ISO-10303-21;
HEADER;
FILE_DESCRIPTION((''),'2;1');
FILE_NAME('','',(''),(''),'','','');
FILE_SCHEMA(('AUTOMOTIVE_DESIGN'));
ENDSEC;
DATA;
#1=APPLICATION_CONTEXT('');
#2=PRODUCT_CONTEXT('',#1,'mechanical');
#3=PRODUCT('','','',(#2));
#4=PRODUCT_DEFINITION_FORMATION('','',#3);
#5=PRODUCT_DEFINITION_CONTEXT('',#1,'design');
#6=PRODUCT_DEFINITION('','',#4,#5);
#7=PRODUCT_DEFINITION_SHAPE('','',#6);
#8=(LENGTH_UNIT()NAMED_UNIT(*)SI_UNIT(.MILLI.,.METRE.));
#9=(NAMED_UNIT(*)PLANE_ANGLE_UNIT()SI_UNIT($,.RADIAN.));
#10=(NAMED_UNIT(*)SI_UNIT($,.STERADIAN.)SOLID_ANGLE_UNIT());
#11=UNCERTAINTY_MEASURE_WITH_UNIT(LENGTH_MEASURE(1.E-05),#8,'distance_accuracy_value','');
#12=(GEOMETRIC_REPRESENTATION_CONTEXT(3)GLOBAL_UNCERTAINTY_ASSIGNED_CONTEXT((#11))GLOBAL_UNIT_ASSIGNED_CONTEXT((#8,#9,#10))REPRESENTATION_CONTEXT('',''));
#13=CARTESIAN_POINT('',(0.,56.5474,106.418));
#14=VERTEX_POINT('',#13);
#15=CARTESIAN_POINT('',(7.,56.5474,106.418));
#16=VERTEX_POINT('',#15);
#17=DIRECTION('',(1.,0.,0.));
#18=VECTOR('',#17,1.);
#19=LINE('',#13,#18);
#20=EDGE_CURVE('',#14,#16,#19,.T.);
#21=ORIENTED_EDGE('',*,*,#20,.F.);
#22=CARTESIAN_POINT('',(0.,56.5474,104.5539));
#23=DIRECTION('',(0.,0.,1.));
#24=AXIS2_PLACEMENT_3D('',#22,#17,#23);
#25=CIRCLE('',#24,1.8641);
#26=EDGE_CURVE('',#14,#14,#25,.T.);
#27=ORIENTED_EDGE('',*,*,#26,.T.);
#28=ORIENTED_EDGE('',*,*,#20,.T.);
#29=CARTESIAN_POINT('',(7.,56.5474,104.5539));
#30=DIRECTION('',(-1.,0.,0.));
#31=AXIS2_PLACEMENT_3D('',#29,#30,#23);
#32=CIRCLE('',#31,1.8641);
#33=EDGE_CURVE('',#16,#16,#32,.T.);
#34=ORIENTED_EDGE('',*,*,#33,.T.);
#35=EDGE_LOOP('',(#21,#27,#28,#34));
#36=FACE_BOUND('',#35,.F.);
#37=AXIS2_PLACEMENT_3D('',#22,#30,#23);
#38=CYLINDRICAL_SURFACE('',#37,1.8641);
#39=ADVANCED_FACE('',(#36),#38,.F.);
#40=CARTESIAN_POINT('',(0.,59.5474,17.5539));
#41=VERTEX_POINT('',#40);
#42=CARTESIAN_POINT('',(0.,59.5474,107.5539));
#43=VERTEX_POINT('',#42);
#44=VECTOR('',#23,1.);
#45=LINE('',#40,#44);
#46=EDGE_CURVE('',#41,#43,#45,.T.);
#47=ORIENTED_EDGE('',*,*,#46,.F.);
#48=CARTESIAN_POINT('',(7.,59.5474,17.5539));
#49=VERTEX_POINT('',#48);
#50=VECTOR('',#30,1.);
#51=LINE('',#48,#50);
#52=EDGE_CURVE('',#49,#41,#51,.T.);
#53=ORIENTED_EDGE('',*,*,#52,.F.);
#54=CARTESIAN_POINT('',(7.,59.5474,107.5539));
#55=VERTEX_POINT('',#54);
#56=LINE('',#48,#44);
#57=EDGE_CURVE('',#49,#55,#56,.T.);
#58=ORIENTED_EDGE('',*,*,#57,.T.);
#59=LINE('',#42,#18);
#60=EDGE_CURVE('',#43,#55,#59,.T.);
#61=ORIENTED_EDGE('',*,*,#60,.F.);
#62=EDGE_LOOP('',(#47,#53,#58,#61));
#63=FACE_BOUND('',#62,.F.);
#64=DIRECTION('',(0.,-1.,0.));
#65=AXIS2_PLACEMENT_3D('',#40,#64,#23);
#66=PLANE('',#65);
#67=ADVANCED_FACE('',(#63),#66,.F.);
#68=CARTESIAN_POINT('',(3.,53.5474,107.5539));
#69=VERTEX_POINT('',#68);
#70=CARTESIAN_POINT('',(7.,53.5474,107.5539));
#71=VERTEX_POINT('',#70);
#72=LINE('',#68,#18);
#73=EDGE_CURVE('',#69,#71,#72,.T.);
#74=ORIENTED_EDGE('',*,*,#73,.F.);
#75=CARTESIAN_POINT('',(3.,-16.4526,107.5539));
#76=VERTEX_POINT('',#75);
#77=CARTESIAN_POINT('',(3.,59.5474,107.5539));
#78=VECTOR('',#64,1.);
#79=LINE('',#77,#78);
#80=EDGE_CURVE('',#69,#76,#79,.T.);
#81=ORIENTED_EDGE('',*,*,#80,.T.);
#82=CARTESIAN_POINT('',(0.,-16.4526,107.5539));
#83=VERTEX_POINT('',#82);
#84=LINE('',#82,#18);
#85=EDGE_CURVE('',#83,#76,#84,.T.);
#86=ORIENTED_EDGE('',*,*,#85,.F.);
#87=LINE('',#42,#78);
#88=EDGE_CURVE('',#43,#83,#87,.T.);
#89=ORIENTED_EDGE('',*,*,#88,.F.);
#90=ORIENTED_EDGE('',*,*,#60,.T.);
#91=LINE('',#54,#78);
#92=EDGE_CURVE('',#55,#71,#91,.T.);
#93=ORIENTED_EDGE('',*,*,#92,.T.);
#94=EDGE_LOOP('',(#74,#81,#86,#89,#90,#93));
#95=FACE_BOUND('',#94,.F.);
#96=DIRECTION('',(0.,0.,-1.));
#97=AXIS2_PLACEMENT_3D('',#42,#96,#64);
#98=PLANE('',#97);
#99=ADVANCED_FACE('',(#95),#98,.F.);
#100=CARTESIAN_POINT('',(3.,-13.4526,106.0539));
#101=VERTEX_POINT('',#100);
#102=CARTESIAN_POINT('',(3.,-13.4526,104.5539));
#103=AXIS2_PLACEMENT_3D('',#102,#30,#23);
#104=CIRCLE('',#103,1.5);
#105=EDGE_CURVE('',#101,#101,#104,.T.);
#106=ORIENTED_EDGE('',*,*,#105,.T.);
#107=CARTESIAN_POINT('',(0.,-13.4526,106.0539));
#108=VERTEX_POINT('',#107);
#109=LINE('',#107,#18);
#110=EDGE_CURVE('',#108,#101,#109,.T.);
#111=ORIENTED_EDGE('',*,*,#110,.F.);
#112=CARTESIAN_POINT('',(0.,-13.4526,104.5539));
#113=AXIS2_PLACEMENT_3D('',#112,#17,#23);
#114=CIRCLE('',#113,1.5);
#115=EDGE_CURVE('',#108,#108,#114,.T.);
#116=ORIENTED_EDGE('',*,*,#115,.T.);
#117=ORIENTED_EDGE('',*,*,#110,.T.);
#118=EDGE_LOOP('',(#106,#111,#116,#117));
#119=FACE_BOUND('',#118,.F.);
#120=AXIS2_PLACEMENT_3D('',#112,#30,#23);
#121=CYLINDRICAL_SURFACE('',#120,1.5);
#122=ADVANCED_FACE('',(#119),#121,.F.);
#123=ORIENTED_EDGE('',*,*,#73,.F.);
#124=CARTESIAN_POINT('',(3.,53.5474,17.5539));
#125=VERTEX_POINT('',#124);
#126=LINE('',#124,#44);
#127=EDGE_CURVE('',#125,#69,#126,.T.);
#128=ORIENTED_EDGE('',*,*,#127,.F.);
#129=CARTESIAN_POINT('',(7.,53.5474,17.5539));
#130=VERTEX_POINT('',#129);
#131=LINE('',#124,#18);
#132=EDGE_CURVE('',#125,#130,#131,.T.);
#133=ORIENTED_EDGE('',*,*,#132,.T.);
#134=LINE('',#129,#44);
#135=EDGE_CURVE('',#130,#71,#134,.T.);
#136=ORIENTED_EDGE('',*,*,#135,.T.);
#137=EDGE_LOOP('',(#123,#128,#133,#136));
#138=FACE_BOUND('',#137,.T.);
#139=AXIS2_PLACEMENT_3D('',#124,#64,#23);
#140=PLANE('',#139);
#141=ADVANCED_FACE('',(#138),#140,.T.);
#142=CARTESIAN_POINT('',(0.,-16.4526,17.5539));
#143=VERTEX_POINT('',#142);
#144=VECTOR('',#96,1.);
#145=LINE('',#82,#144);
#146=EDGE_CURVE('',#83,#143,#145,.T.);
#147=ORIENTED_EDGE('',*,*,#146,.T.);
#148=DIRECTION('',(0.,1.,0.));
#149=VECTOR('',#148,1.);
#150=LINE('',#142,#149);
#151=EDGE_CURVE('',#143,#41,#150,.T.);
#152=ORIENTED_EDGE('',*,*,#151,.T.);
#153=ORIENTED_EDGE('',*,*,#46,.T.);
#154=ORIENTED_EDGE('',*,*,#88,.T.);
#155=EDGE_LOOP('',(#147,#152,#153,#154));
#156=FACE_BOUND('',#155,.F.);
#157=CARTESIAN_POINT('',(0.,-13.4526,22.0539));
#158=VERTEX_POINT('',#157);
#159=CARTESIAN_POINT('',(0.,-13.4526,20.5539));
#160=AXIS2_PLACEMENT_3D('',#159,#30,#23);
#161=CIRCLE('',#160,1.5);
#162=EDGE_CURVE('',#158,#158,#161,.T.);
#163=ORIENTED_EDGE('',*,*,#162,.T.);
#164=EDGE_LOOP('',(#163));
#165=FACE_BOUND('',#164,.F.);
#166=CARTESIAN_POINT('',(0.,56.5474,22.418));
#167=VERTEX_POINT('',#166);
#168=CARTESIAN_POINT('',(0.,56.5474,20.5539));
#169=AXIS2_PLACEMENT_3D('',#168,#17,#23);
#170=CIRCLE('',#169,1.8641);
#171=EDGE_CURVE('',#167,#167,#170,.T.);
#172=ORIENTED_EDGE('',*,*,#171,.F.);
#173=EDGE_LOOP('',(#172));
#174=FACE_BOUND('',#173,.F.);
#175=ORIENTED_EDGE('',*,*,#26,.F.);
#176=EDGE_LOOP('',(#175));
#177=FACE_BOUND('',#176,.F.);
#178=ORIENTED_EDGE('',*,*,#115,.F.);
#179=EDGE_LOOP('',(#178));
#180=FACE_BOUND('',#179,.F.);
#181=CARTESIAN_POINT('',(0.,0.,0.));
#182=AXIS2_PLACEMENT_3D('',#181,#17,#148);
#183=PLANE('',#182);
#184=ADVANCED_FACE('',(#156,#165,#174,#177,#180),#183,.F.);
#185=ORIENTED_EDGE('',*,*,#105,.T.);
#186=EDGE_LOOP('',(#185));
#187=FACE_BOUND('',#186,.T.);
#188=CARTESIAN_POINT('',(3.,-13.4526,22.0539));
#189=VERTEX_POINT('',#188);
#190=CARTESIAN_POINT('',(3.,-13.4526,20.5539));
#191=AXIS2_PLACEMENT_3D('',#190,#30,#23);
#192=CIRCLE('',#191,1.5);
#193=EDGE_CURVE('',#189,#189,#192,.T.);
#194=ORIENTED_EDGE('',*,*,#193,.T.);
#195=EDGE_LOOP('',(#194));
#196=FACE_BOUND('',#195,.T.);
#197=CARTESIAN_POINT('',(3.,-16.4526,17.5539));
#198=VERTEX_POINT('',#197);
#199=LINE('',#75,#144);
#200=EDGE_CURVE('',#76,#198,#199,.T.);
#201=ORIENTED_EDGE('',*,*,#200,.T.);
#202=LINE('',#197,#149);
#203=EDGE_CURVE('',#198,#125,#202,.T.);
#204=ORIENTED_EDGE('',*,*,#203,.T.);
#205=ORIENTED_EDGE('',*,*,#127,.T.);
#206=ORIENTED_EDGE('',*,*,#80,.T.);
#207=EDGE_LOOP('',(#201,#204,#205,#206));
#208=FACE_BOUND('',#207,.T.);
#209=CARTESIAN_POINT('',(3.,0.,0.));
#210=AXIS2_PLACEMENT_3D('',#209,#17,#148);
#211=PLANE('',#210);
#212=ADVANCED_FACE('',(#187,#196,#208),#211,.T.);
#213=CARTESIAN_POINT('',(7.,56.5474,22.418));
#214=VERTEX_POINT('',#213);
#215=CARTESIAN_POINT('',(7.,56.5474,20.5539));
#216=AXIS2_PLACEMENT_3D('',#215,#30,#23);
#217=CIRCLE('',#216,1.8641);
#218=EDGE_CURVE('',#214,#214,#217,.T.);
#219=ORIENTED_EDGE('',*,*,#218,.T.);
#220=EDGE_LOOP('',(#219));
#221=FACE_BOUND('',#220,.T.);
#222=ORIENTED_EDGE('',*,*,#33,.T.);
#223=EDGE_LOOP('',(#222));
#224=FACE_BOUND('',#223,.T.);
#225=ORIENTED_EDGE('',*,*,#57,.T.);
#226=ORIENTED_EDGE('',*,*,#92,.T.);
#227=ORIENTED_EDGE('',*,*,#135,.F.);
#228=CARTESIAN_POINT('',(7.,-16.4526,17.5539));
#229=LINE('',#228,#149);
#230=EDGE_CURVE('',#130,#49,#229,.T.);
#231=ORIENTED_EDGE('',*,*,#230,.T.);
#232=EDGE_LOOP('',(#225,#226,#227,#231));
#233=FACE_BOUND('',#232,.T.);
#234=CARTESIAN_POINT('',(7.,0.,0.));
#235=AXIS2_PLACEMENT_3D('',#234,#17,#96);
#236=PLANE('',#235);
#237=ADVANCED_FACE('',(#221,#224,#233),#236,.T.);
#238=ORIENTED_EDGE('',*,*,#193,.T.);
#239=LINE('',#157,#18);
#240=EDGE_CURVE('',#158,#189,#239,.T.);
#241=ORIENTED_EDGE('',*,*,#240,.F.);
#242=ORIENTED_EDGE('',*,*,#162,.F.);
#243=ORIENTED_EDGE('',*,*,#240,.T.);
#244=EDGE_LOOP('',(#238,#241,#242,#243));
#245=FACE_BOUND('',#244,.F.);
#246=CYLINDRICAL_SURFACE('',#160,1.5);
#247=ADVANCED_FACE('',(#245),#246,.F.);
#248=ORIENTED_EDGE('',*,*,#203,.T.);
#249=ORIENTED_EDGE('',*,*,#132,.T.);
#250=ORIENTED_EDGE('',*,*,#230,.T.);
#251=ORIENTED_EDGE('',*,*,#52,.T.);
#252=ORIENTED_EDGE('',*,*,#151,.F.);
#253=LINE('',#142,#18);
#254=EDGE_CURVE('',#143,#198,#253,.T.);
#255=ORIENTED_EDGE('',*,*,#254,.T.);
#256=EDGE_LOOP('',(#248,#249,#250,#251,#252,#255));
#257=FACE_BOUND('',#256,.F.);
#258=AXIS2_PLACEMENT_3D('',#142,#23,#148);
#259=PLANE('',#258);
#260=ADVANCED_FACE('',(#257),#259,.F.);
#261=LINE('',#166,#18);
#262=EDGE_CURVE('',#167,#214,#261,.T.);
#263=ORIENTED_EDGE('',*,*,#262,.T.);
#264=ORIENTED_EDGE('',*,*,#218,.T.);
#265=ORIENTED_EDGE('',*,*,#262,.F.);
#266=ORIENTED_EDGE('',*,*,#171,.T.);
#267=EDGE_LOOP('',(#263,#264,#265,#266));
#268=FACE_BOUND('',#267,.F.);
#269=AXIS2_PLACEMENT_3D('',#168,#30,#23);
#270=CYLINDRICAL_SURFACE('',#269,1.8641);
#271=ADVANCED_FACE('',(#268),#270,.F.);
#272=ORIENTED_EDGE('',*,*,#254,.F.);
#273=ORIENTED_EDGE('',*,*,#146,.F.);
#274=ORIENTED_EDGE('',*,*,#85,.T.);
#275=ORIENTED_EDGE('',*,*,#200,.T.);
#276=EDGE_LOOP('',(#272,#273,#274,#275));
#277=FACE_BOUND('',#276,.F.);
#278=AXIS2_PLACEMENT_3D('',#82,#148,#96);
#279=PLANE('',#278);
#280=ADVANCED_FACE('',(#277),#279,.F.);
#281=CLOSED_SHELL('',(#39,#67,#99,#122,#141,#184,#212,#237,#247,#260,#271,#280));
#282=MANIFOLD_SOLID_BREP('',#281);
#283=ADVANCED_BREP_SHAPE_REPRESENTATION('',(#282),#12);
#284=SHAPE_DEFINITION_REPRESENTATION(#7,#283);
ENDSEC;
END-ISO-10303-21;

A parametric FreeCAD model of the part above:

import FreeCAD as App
import Part
import Sketcher
Q = App.Units.Quantity


def add_polygon(sketch, points):
    """Adds a closed chain of lines whose ends are joined by coincident constraints."""
    first, n = sketch.GeometryCount, len(points)
    for a, b in zip(points, points[1:] + points[:1]):
        sketch.addGeometry(Part.LineSegment(App.Vector(*a, 0), App.Vector(*b, 0)), False)
    for i in range(n):
        sketch.addConstraint(Sketcher.Constraint("Coincident", first + i, 2, first + (i + 1) % n, 1))

doc = App.newDocument("Part")
body = doc.addObject("PartDesign::Body", "Body")

# Sketch on YZ plane
sketch1 = body.newObject("Sketcher::SketchObject", "Sketch")
sketch1.AttachmentSupport = (doc.getObject("YZ_Plane"), [""])
sketch1.MapMode = "FlatFace"
add_polygon(sketch1, [(60, 18), (60, 108), (-16, 108), (-16, 18)])  # lines 0-3
sketch1.addConstraint([
    Sketcher.Constraint("Vertical", 0),
    Sketcher.Constraint("Horizontal", 1),
    Sketcher.Constraint("Vertical", 2),
    Sketcher.Constraint("Horizontal", 3),
    Sketcher.Constraint("DistanceX", 1, 2, 1, 1, Q("76 mm")),
    Sketcher.Constraint("DistanceY", 0, 1, 0, 2, Q("90 mm")),
    Sketcher.Constraint("DistanceY", -1, 1, 0, 2, Q("107.554 mm")),
    Sketcher.Constraint("DistanceX", -1, 1, 0, 2, Q("59.5474 mm")),
])
pad1 = body.newObject("PartDesign::Pad", "Pad")
pad1.Profile = sketch1
pad1.Length = 3

# Sketch on YZ plane
sketch2 = body.newObject("Sketcher::SketchObject", "Sketch001")
sketch2.AttachmentSupport = (doc.getObject("YZ_Plane"), [""])
sketch2.MapMode = "FlatFace"
sketch2.AttachmentOffset = App.Placement(App.Vector(0, 0, 3), App.Rotation())
add_polygon(sketch2, [(60, 108), (54, 108), (54, 18), (60, 18)])  # lines 0-3
sketch2.addConstraint([
    Sketcher.Constraint("Horizontal", 0),
    Sketcher.Constraint("Vertical", 1),
    Sketcher.Constraint("Horizontal", 2),
    Sketcher.Constraint("Vertical", 3),
    Sketcher.Constraint("DistanceX", 0, 2, 0, 1, Q("6 mm")),
    Sketcher.Constraint("DistanceY", 1, 2, 1, 1, Q("90 mm")),
    Sketcher.Constraint("DistanceY", -1, 1, 0, 2, Q("107.554 mm")),
    Sketcher.Constraint("DistanceX", -1, 1, 0, 2, Q("53.5474 mm")),
])
pad2 = body.newObject("PartDesign::Pad", "Pad001")
pad2.Profile = sketch2
pad2.Length = 4

# Sketch on YZ plane
sketch3 = body.newObject("Sketcher::SketchObject", "Sketch002")
sketch3.AttachmentSupport = (doc.getObject("YZ_Plane"), [""])
sketch3.MapMode = "FlatFace"
sketch3.addGeometry([
    Part.Circle(App.Vector(-13.5, 104.6, 0), App.Vector(0, 0, 1), 1.5),
    Part.Circle(App.Vector(56.5, 104.6, 0), App.Vector(0, 0, 1), 1.9),
    Part.Circle(App.Vector(56.5, 20.6, 0), App.Vector(0, 0, 1), 1.9),
    Part.Circle(App.Vector(-13.5, 20.6, 0), App.Vector(0, 0, 1), 1.5),
], False)
sketch3.addConstraint([
    Sketcher.Constraint("Equal", 1, 2),
    Sketcher.Constraint("Equal", 0, 3),
    Sketcher.Constraint("Horizontal", 0, 3, 1, 3),
    Sketcher.Constraint("Horizontal", 2, 3, 3, 3),
    Sketcher.Constraint("Vertical", 1, 3, 2, 3),
    Sketcher.Constraint("Vertical", 0, 3, 3, 3),
    Sketcher.Constraint("Diameter", 0, Q("3 mm")),
    Sketcher.Constraint("DistanceX", 0, 3, 1, 3, Q("70 mm")),
    Sketcher.Constraint("DistanceY", 2, 3, 1, 3, Q("84 mm")),
    Sketcher.Constraint("Diameter", 1, Q("3.7282 mm")),
    Sketcher.Constraint("DistanceY", -1, 1, 0, 3, Q("104.554 mm")),
    Sketcher.Constraint("DistanceX", 0, 3, -1, 1, Q("13.4526 mm")),
])
pocket1 = body.newObject("PartDesign::Pocket", "Pocket")
pocket1.Profile = sketch3
pocket1.Length = 7
pocket1.Reversed = True

doc.recompute()
